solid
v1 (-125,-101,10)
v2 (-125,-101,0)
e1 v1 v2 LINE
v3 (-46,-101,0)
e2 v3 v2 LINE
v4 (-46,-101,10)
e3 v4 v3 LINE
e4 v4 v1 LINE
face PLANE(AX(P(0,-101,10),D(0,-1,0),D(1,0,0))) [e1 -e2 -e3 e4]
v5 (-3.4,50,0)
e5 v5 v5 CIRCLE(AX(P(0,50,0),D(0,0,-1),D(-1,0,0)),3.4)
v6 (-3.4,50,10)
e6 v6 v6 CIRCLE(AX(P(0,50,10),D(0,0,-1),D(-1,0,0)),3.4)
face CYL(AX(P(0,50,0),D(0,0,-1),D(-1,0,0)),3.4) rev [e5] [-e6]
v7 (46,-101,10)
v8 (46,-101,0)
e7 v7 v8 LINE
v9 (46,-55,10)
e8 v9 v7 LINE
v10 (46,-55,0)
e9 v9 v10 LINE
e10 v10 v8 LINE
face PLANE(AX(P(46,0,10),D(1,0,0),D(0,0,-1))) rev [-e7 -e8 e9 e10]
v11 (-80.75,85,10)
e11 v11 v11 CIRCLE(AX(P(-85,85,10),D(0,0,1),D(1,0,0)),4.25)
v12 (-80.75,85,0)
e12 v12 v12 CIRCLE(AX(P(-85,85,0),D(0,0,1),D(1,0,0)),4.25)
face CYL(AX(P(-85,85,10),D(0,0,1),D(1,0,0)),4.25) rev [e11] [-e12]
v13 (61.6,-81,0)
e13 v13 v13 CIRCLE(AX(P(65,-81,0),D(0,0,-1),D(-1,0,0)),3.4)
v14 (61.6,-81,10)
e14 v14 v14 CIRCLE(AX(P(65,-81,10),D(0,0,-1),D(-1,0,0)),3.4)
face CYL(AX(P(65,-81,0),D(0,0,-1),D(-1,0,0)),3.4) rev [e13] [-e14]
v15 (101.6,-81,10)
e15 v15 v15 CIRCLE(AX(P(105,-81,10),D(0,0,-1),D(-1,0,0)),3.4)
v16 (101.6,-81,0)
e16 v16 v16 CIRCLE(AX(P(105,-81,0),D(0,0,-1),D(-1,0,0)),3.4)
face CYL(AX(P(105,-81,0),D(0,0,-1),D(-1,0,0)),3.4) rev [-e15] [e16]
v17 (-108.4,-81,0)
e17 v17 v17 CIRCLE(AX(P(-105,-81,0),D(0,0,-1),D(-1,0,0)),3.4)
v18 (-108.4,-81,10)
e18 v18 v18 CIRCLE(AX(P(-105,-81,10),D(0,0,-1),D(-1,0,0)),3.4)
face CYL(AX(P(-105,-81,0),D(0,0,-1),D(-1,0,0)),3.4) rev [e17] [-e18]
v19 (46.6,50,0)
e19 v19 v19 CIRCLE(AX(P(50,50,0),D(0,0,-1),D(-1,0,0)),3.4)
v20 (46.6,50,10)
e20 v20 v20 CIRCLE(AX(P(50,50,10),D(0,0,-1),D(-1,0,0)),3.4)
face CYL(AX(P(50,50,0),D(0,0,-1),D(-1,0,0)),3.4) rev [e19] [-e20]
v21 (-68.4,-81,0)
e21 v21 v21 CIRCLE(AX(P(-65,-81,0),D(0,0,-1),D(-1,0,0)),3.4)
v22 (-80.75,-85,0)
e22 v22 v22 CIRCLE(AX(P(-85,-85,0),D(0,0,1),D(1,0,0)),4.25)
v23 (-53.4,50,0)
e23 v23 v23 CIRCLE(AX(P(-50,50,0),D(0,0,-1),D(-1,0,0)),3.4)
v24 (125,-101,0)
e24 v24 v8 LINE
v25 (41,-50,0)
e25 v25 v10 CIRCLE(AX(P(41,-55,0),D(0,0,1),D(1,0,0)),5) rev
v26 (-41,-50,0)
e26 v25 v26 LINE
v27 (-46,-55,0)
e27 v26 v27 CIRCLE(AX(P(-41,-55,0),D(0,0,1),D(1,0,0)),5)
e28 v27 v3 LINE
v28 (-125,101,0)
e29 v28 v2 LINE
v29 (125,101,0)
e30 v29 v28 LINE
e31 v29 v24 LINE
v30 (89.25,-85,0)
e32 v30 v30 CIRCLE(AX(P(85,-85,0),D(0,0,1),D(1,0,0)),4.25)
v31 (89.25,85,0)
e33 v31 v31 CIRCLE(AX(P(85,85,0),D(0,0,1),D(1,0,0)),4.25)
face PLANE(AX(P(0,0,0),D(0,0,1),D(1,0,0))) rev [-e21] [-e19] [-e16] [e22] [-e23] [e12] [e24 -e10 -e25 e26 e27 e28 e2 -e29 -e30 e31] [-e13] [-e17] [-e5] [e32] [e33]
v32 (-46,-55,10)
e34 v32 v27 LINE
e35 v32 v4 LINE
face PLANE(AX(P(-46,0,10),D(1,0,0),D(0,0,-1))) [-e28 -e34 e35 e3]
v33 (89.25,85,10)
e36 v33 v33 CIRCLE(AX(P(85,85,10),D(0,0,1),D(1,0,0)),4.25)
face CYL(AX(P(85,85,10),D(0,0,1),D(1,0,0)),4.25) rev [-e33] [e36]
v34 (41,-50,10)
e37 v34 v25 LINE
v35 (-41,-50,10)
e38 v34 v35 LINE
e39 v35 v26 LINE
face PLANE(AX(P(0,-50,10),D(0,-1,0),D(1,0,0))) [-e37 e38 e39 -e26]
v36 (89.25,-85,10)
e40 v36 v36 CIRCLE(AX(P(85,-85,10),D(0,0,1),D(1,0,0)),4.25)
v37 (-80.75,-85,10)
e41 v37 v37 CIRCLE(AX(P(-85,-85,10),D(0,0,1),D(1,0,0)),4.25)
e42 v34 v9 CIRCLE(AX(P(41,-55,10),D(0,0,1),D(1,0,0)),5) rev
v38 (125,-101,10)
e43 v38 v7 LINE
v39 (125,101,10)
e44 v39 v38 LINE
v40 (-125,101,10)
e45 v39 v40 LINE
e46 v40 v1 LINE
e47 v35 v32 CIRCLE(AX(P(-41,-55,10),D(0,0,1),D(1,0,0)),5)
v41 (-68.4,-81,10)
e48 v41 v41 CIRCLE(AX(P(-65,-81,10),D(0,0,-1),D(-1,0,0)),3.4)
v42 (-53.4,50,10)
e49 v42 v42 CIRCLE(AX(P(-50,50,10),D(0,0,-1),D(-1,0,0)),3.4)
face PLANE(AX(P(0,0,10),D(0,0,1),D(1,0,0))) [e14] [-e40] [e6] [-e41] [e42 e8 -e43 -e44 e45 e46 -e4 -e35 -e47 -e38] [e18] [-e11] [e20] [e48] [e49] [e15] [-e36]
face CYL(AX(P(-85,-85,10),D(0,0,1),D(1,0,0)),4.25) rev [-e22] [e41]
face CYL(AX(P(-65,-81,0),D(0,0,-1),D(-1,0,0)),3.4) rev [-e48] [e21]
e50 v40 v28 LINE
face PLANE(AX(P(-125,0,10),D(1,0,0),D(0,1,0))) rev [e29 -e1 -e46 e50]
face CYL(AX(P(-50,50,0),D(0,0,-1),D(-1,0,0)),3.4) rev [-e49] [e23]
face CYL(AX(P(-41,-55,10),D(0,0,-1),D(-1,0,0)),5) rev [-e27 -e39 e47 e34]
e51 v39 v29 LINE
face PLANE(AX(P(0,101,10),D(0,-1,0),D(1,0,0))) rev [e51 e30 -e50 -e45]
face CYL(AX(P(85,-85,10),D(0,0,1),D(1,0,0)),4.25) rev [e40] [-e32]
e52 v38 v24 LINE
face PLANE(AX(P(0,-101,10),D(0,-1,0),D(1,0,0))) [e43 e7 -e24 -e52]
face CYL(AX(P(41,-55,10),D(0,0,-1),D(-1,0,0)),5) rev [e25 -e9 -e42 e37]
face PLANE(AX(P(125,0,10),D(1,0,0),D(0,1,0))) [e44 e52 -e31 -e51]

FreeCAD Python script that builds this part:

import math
import FreeCAD as App
import Part
import Sketcher

doc = App.newDocument("Part")
body = doc.addObject("PartDesign::Body", "Body")

# Sketch on XY plane
sketch1 = body.newObject("Sketcher::SketchObject", "Sketch")
sketch1.AttachmentSupport = (doc.getObject("XY_Plane"), [""])
sketch1.MapMode = "FlatFace"
sketch1.addGeometry(Part.LineSegment(App.Vector(125, -101, 0), App.Vector(125, 101, 0)), False)
sketch1.addGeometry(Part.LineSegment(App.Vector(125, 101, 0), App.Vector(-125, 101, 0)), False)
sketch1.addGeometry(Part.LineSegment(App.Vector(-125, 101, 0), App.Vector(-125, -101, 0)), False)
sketch1.addGeometry(Part.LineSegment(App.Vector(-125, -101, 0), App.Vector(-46, -101, 0)), False)
sketch1.addGeometry(Part.LineSegment(App.Vector(-46, -101, 0), App.Vector(-46, -55, 0)), False)
sketch1.addGeometry(Part.ArcOfCircle(Part.Circle(App.Vector(-41, -55, 0), App.Vector(0, 0, 1), 5), math.radians(90), math.radians(180)), False)
sketch1.addGeometry(Part.LineSegment(App.Vector(-41, -50, 0), App.Vector(41, -50, 0)), False)
sketch1.addGeometry(Part.ArcOfCircle(Part.Circle(App.Vector(41, -55, 0), App.Vector(0, 0, 1), 5), math.radians(0), math.radians(90)), False)
sketch1.addGeometry(Part.LineSegment(App.Vector(46, -55, 0), App.Vector(46, -101, 0)), False)
sketch1.addGeometry(Part.LineSegment(App.Vector(46, -101, 0), App.Vector(125, -101, 0)), False)
sketch1.addGeometry(Part.Circle(App.Vector(-85, -85, 0), App.Vector(0, 0, 1), 4), False)
sketch1.addGeometry(Part.Circle(App.Vector(85, -85, 0), App.Vector(0, 0, 1), 4), False)
sketch1.addGeometry(Part.Circle(App.Vector(-85, 85, 0), App.Vector(0, 0, 1), 4), False)
sketch1.addGeometry(Part.Circle(App.Vector(85, 85, 0), App.Vector(0, 0, 1), 4), False)
sketch1.addConstraint(Sketcher.Constraint("Coincident", 0, 2, 1, 1))
sketch1.addConstraint(Sketcher.Constraint("Coincident", 1, 2, 2, 1))
sketch1.addConstraint(Sketcher.Constraint("Coincident", 2, 2, 3, 1))
sketch1.addConstraint(Sketcher.Constraint("Coincident", 3, 2, 4, 1))
sketch1.addConstraint(Sketcher.Constraint("Tangent", 4, 2, 5, 2))
sketch1.addConstraint(Sketcher.Constraint("Tangent", 5, 1, 6, 1))
sketch1.addConstraint(Sketcher.Constraint("Tangent", 6, 2, 7, 2))
sketch1.addConstraint(Sketcher.Constraint("Tangent", 7, 1, 8, 1))
sketch1.addConstraint(Sketcher.Constraint("Coincident", 8, 2, 9, 1))
sketch1.addConstraint(Sketcher.Constraint("Coincident", 9, 2, 0, 1))
sketch1.addConstraint(Sketcher.Constraint("Vertical", 0))
sketch1.addConstraint(Sketcher.Constraint("Horizontal", 1))
sketch1.addConstraint(Sketcher.Constraint("Vertical", 2))
sketch1.addConstraint(Sketcher.Constraint("Horizontal", 3))
sketch1.addConstraint(Sketcher.Constraint("Vertical", 4))
sketch1.addConstraint(Sketcher.Constraint("Horizontal", 6))
sketch1.addConstraint(Sketcher.Constraint("Vertical", 8))
sketch1.addConstraint(Sketcher.Constraint("Horizontal", 9))
sketch1.addConstraint(Sketcher.Constraint("Equal", 5, 7))
sketch1.addConstraint(Sketcher.Constraint("Equal", 10, 11))
sketch1.addConstraint(Sketcher.Constraint("Equal", 11, 12))
sketch1.addConstraint(Sketcher.Constraint("Equal", 12, 13))
sketch1.addConstraint(Sketcher.Constraint("Symmetric", 11, 3, 12, 3, -1, 1))
sketch1.addConstraint(Sketcher.Constraint("Symmetric", 10, 3, 13, 3, -1, 1))
sketch1.addConstraint(Sketcher.Constraint("Symmetric", 0, 2, 2, 2, -1, 1))
sketch1.addConstraint(Sketcher.Constraint("Symmetric", 10, 3, 11, 3, -2))
sketch1.addConstraint(Sketcher.Constraint("Symmetric", 3, 2, 8, 2, -2))
sketch1.addConstraint(Sketcher.Constraint("Diameter", 10, 8.0))
sketch1.addConstraint(Sketcher.Constraint("Radius", 5, 5.0))
sketch1.addConstraint(Sketcher.Constraint("DistanceX", 1, 2, 1, 1, 250.0))
sketch1.addConstraint(Sketcher.Constraint("DistanceX", 3, 1, 3, 2, 79.0))
sketch1.addConstraint(Sketcher.Constraint("DistanceY", 0, 1, 0, 2, 202.0))
sketch1.addConstraint(Sketcher.Constraint("DistanceY", 4, 1, 4, 2, 46.0))
sketch1.addConstraint(Sketcher.Constraint("DistanceX", 10, 3, -1, 1, 85.0))
sketch1.addConstraint(Sketcher.Constraint("DistanceY", 10, 3, -1, 1, 85.0))
pad1 = body.newObject("PartDesign::Pad", "Pad")
pad1.Profile = sketch1
pad1.Length = 10

# Sketch on XY plane
sketch2 = body.newObject("Sketcher::SketchObject", "Sketch001")
sketch2.AttachmentSupport = (doc.getObject("XY_Plane"), [""])
sketch2.MapMode = "FlatFace"
sketch2.AttachmentOffset = App.Placement(App.Vector(0, 0, 10), App.Rotation())
sketch2.addGeometry(Part.Circle(App.Vector(85, -85, 0), App.Vector(0, 0, 1), 4.2), False)
sketch2.addGeometry(Part.Circle(App.Vector(-85, -85, 0), App.Vector(0, 0, 1), 4.2), False)
sketch2.addGeometry(Part.Circle(App.Vector(-85, 85, 0), App.Vector(0, 0, 1), 4.2), False)
sketch2.addGeometry(Part.Circle(App.Vector(85, 85, 0), App.Vector(0, 0, 1), 4.2), False)
sketch2.addConstraint(Sketcher.Constraint("Equal", 0, 1))
sketch2.addConstraint(Sketcher.Constraint("Equal", 1, 2))
sketch2.addConstraint(Sketcher.Constraint("Equal", 2, 3))
sketch2.addConstraint(Sketcher.Constraint("Symmetric", 0, 3, 2, 3, -1, 1))
sketch2.addConstraint(Sketcher.Constraint("Symmetric", 1, 3, 3, 3, -1, 1))
sketch2.addConstraint(Sketcher.Constraint("Symmetric", 0, 3, 1, 3, -2))
sketch2.addConstraint(Sketcher.Constraint("Diameter", 0, 8.5))
sketch2.addConstraint(Sketcher.Constraint("DistanceX", -1, 1, 0, 3, 85.0))
sketch2.addConstraint(Sketcher.Constraint("DistanceY", 0, 3, -1, 1, 85.0))
doc.recompute()
hole = body.newObject("PartDesign::Hole", "Hole")
hole.Profile = sketch2
hole.ThreadType = "None"
hole.Diameter = 8.5
hole.DepthType = "ThroughAll"

# Sketch on XY plane
sketch3 = body.newObject("Sketcher::SketchObject", "Sketch002")
sketch3.AttachmentSupport = (doc.getObject("XY_Plane"), [""])
sketch3.MapMode = "FlatFace"
sketch3.addGeometry(Part.Circle(App.Vector(50, 50, 0), App.Vector(0, 0, 1), 3.4), False)
sketch3.addGeometry(Part.Circle(App.Vector(0, 50, 0), App.Vector(0, 0, 1), 3.4), False)
sketch3.addGeometry(Part.Circle(App.Vector(-50, 50, 0), App.Vector(0, 0, 1), 3.4), False)
sketch3.addGeometry(Part.Circle(App.Vector(105, -81, 0), App.Vector(0, 0, 1), 3.4), False)
sketch3.addGeometry(Part.Circle(App.Vector(65, -81, 0), App.Vector(0, 0, 1), 3.4), False)
sketch3.addGeometry(Part.Circle(App.Vector(-65, -81, 0), App.Vector(0, 0, 1), 3.4), False)
sketch3.addGeometry(Part.Circle(App.Vector(-105, -81, 0), App.Vector(0, 0, 1), 3.4), False)
sketch3.addConstraint(Sketcher.Constraint("Equal", 0, 1))
sketch3.addConstraint(Sketcher.Constraint("Equal", 1, 2))
sketch3.addConstraint(Sketcher.Constraint("Equal", 2, 3))
sketch3.addConstraint(Sketcher.Constraint("Equal", 3, 4))
sketch3.addConstraint(Sketcher.Constraint("Equal", 4, 5))
sketch3.addConstraint(Sketcher.Constraint("Equal", 5, 6))
sketch3.addConstraint(Sketcher.Constraint("Symmetric", 0, 3, 2, 3, -2))
sketch3.addConstraint(Sketcher.Constraint("Symmetric", 4, 3, 5, 3, -2))
sketch3.addConstraint(Sketcher.Constraint("Symmetric", 3, 3, 6, 3, -2))
sketch3.addConstraint(Sketcher.Constraint("PointOnObject", 1, 3, -2))
sketch3.addConstraint(Sketcher.Constraint("Horizontal", 0, 3, 1, 3))
sketch3.addConstraint(Sketcher.Constraint("Horizontal", 3, 3, 4, 3))
sketch3.addConstraint(Sketcher.Constraint("Diameter", 0, 6.8))
sketch3.addConstraint(Sketcher.Constraint("DistanceX", -1, 1, 0, 3, 50.0))
sketch3.addConstraint(Sketcher.Constraint("DistanceY", -1, 1, 0, 3, 50.0))
sketch3.addConstraint(Sketcher.Constraint("DistanceX", -1, 1, 3, 3, 105.0))
sketch3.addConstraint(Sketcher.Constraint("DistanceY", 3, 3, -1, 1, 81.0))
sketch3.addConstraint(Sketcher.Constraint("DistanceX", -1, 1, 4, 3, 65.0))
doc.recompute()
hole2 = body.newObject("PartDesign::Hole", "Hole001")
hole2.Profile = sketch3
hole2.ThreadType = "None"
hole2.Diameter = 6.8
hole2.DepthType = "ThroughAll"
hole2.Reversed = True

doc.recompute()
